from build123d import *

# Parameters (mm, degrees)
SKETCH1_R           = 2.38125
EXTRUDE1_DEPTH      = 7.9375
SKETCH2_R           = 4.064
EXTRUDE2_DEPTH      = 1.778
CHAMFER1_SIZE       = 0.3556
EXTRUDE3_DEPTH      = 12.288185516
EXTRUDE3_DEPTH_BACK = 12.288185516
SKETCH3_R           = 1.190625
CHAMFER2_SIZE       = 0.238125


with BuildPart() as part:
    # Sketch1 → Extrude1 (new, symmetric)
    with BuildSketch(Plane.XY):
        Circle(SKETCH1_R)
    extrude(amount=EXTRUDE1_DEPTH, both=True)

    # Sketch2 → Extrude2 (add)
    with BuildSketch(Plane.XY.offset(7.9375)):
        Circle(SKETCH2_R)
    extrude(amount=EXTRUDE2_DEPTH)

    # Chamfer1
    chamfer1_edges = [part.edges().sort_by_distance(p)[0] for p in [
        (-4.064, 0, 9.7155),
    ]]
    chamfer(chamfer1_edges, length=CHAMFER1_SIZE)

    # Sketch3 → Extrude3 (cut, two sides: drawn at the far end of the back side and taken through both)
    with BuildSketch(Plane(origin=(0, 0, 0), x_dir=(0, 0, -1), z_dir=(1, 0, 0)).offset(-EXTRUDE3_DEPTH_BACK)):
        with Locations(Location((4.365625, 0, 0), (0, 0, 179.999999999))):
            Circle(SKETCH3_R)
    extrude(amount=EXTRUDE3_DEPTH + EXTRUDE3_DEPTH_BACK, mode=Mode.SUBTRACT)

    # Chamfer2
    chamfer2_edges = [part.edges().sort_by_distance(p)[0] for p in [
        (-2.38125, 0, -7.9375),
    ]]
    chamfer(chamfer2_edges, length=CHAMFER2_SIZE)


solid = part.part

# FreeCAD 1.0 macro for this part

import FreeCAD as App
import Part
import Sketcher
from FreeCAD import Vector
Q = App.Units.Quantity


def edges_at(feature, points):
    """Names of the edges that pass closest to the given points."""
    edges = feature.Shape.Edges
    near = lambda p: min(range(len(edges)), key=lambda i: edges[i].distToShape(Part.Vertex(*p))[0])
    return sorted({f"Edge{near(p) + 1}" for p in points})

doc = App.newDocument("Part")
body = doc.addObject("PartDesign::Body", "Body")

# Sketch on XY plane
sketch1 = body.newObject("Sketcher::SketchObject", "Sketch")
sketch1.AttachmentSupport = (doc.getObject("XY_Plane"), [""])
sketch1.MapMode = "FlatFace"
sketch1.addGeometry(Part.Circle(Vector(0, 0, 0), Vector(0, 0, 1), 2.4), False)
sketch1.addConstraint([
    Sketcher.Constraint("Coincident", 0, 3, -1, 1),
    Sketcher.Constraint("Diameter", 0, Q("0.1875 in")),
])
pad1 = body.newObject("PartDesign::Pad", "Pad")
pad1.Profile = sketch1
pad1.Length = Q("0.625 in")
pad1.Midplane = True

# Sketch on XY plane
sketch2 = body.newObject("Sketcher::SketchObject", "Sketch001")
sketch2.AttachmentSupport = (doc.getObject("XY_Plane"), [""])
sketch2.MapMode = "FlatFace"
sketch2.AttachmentOffset = App.Placement(Vector(0, 0, 0.3125 * 25.4), App.Rotation())
sketch2.addGeometry(Part.Circle(Vector(0, 0, 0), Vector(0, 0, 1), 4.1), False)
sketch2.addConstraint([
    Sketcher.Constraint("Coincident", 0, 3, -1, 1),
    Sketcher.Constraint("Diameter", 0, Q("0.32 in")),
])
pad2 = body.newObject("PartDesign::Pad", "Pad001")
pad2.Profile = sketch2
pad2.Length = Q("0.07 in")
doc.recompute()

chamfer = body.newObject("PartDesign::Chamfer", "Chamfer")
chamfer.Base = (pad2, edges_at(pad2, [(-4.064, 0, 9.716)]))
chamfer.Size = Q("0.014 in")

# Sketch on YZ plane
sketch3 = body.newObject("Sketcher::SketchObject", "Sketch002")
sketch3.AttachmentSupport = (doc.getObject("YZ_Plane"), [""])
sketch3.MapMode = "FlatFace"
sketch3.addGeometry(Part.Circle(Vector(0, -4.4, 0), Vector(0, 0, 1), 1.2), False)
sketch3.addConstraint([
    Sketcher.Constraint("PointOnObject", 0, 3, -2),
    Sketcher.Constraint("Diameter", 0, Q("0.09375 in")),
    Sketcher.Constraint("DistanceY", 0, 3, -1, 1, Q("0.171875 in")),
])
pocket1 = body.newObject("PartDesign::Pocket", "Pocket")
pocket1.Profile = sketch3
pocket1.Type = "ThroughAll"
pocket1.Midplane = True
doc.recompute()

chamfer2 = body.newObject("PartDesign::Chamfer", "Chamfer001")
chamfer2.Base = (pocket1, edges_at(pocket1, [(-2.381, 0, -7.938)]))
chamfer2.Size = 0.238125

doc.recompute()
